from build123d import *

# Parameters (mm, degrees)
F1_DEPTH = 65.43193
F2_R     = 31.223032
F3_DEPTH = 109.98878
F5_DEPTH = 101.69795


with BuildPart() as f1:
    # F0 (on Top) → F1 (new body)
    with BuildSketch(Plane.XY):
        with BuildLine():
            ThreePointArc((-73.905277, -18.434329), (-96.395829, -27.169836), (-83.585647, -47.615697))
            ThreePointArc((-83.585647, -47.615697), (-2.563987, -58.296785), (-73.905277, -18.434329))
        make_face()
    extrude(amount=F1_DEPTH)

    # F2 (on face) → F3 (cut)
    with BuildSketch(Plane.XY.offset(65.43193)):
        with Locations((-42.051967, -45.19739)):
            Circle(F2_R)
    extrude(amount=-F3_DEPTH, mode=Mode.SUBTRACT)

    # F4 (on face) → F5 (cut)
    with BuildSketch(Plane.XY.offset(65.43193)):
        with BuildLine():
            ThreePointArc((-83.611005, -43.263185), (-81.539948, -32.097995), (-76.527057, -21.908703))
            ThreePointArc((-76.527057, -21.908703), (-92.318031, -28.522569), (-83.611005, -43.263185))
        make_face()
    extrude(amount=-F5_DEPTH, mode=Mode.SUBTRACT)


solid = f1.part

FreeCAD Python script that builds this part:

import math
import FreeCAD as App
import Part
import Sketcher
Q = App.Units.Quantity

doc = App.newDocument("Part")
params = doc.addObject("Spreadsheet::Sheet", "Params")
for row, (alias, value) in enumerate([
    ("pad1_length", "65.43193 mm"),
    ("pocket1_length", "109.98878 mm"),
    ("pocket2_length", "101.69795 mm"),
], start=1):
    params.set(f"A{row}", alias)
    params.set(f"B{row}", "=" + value)
    params.setAlias(f"B{row}", alias)

body = doc.addObject("PartDesign::Body", "Body")

# Sketch on XY plane
sketch1 = body.newObject("Sketcher::SketchObject", "Sketch")
sketch1.AttachmentSupport = (doc.getObject("XY_Plane"), [""])
sketch1.MapMode = "FlatFace"
sketch1.addGeometry(Part.ArcOfCircle(Part.Circle(App.Vector(-82, -32, 0), App.Vector(0, 0, 1), 16), math.radians(61), math.radians(262)), False)
sketch1.addGeometry(Part.ArcOfCircle(Part.Circle(App.Vector(-42, -45, 0), App.Vector(0, 0, 1), 42), math.radians(-177), math.radians(140)), False)
sketch1.addConstraint(Sketcher.Constraint("Coincident", 0, 1, 1, 2))
sketch1.addConstraint(Sketcher.Constraint("Coincident", 1, 1, 0, 2))
sketch1.addConstraint(Sketcher.Constraint("Radius", 0, Q("15.651964 mm")))
sketch1.addConstraint(Sketcher.Constraint("Radius", 1, Q("41.604023 mm")))
sketch1.addConstraint(Sketcher.Constraint("DistanceX", 1, 1, 0, 3, Q("2.045699 mm")))
sketch1.addConstraint(Sketcher.Constraint("DistanceY", 1, 3, -1, 1, Q("45.19739 mm")))
sketch1.addConstraint(Sketcher.Constraint("DistanceY", 0, 1, -1, 1, Q("18.434329 mm")))
sketch1.addConstraint(Sketcher.Constraint("DistanceX", 0, 3, -1, 1, Q("81.539948 mm")))
pad1 = body.newObject("PartDesign::Pad", "Pad")
pad1.Profile = sketch1
pad1.setExpression("Length", "Params.pad1_length")

# Sketch on XY plane
sketch2 = body.newObject("Sketcher::SketchObject", "Sketch001")
sketch2.AttachmentSupport = (doc.getObject("XY_Plane"), [""])
sketch2.MapMode = "FlatFace"
sketch2.AttachmentOffset = App.Placement(App.Vector(0, 0, 65.43193), App.Rotation())
sketch2.addGeometry(Part.Circle(App.Vector(-42, -45, 0), App.Vector(0, 0, 1), 31), False)
sketch2.addConstraint(Sketcher.Constraint("Diameter", 0, Q("62.446064 mm")))
sketch2.addConstraint(Sketcher.Constraint("DistanceY", 0, 3, -1, 1, Q("45.19739 mm")))
sketch2.addConstraint(Sketcher.Constraint("DistanceX", 0, 3, -1, 1, Q("42.051967 mm")))
pocket1 = body.newObject("PartDesign::Pocket", "Pocket")
pocket1.Profile = sketch2
pocket1.setExpression("Length", "Params.pocket1_length")

# Sketch on XY plane
sketch3 = body.newObject("Sketcher::SketchObject", "Sketch002")
sketch3.AttachmentSupport = (doc.getObject("XY_Plane"), [""])
sketch3.MapMode = "FlatFace"
sketch3.AttachmentOffset = App.Placement(App.Vector(0, 0, 65.43193), App.Rotation())
sketch3.addGeometry(Part.ArcOfCircle(Part.Circle(App.Vector(-42, -45, 0), App.Vector(0, 0, 1), 42), math.radians(146), math.radians(177)), False)
sketch3.addGeometry(Part.ArcOfCircle(Part.Circle(App.Vector(-82, -32, 0), App.Vector(0, 0, 1), 11), math.radians(64), math.radians(259)), False)
sketch3.addConstraint(Sketcher.Constraint("Coincident", 0, 1, 1, 1))
sketch3.addConstraint(Sketcher.Constraint("Coincident", 1, 2, 0, 2))
sketch3.addConstraint(Sketcher.Constraint("Radius", 0, Q("41.60402 mm")))
sketch3.addConstraint(Sketcher.Constraint("Radius", 1, Q("11.355648 mm")))
sketch3.addConstraint(Sketcher.Constraint("DistanceX", 0, 3, -1, 1, Q("42.051971 mm")))
sketch3.addConstraint(Sketcher.Constraint("DistanceY", 0, 3, -1, 1, Q("45.197389 mm")))
sketch3.addConstraint(Sketcher.Constraint("DistanceX", 1, 3, 0, 1, Q("5.012891 mm")))
sketch3.addConstraint(Sketcher.Constraint("DistanceY", 1, 2, 1, 3, Q("11.16519 mm")))
pocket2 = body.newObject("PartDesign::Pocket", "Pocket001")
pocket2.Profile = sketch3
pocket2.setExpression("Length", "Params.pocket2_length")

doc.recompute()
